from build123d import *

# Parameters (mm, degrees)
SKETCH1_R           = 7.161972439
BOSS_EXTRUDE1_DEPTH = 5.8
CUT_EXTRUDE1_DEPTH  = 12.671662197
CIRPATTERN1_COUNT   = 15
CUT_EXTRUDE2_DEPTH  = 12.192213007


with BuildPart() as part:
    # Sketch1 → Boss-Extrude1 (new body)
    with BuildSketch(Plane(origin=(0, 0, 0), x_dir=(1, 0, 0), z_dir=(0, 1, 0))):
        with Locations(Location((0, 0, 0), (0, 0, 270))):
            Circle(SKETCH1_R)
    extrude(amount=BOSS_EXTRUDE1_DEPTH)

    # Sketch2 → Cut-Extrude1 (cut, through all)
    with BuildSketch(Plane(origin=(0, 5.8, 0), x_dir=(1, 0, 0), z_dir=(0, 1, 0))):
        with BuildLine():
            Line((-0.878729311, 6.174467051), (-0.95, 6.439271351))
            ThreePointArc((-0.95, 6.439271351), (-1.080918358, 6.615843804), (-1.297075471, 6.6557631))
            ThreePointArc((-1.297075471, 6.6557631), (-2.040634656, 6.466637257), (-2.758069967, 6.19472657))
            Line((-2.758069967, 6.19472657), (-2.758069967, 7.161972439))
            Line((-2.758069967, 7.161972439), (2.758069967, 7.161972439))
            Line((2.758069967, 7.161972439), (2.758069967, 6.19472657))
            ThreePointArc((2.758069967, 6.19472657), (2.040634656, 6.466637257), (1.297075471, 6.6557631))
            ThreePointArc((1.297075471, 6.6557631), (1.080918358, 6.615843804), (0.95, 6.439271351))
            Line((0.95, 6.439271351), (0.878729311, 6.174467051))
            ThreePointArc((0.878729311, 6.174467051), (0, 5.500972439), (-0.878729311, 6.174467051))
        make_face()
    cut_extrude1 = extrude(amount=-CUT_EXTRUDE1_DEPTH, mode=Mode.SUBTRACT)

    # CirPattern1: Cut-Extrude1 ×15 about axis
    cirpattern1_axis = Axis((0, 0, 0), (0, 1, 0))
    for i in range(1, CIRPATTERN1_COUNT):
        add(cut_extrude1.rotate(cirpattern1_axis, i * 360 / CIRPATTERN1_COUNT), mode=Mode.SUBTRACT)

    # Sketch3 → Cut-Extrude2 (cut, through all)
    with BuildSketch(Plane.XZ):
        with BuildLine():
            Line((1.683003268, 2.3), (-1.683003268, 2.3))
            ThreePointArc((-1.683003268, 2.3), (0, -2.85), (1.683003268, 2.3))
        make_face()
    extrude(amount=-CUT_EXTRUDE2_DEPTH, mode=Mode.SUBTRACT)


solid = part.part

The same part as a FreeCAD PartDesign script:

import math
import FreeCAD as App
import Part
import Sketcher

V = App.Vector
Q = App.Units.Quantity

doc = App.newDocument("Part")
body = doc.addObject("PartDesign::Body", "Body")

# Sketch on XZ plane
sketch1 = doc.addObject("Sketcher::SketchObject", "Sketch")
body.addObject(sketch1)
sketch1.AttachmentSupport = (doc.XZ_Plane, [""])
sketch1.MapMode = "FlatFace"
sketch1.addGeometry(Part.Circle(V(0, 0, 0), V(0, 0, 1), 7), False)
sketch1.addConstraint(Sketcher.Constraint("Coincident", 0, 3, -1, 1))
sketch1.addConstraint(Sketcher.Constraint("Diameter", 0, Q("14.323945 mm")))
pad1 = doc.addObject("PartDesign::Pad", "Pad")
body.addObject(pad1)
pad1.Profile = sketch1
pad1.Length = 5.8
pad1.Reversed = True

# Sketch on XZ plane
sketch2 = doc.addObject("Sketcher::SketchObject", "Sketch001")
body.addObject(sketch2)
sketch2.AttachmentSupport = (doc.XZ_Plane, [""])
sketch2.MapMode = "FlatFace"
sketch2.AttachmentOffset = App.Placement(V(0, 0, -5.8), App.Rotation())
sketch2.addGeometry(Part.LineSegment(V(-0.95, -6.44, 0), V(-0.88, -6.17, 0)), False)
sketch2.addGeometry(Part.ArcOfCircle(Part.Circle(V(0, -6.41, 0), V(0, 0, 1), 0.91), math.radians(15), math.radians(165)), False)
sketch2.addGeometry(Part.LineSegment(V(0.88, -6.17, 0), V(0.95, -6.44, 0)), False)
sketch2.addGeometry(Part.ArcOfCircle(Part.Circle(V(1.24, -6.36, 0), V(0, 0, 1), 0.3), math.radians(-165), math.radians(-79)), False)
sketch2.addGeometry(Part.ArcOfCircle(Part.Circle(V(0, 0, 0), V(0, 0, 1), 6.78), math.radians(-78.97), math.radians(-66)), False)
sketch2.addGeometry(Part.LineSegment(V(2.76, -6.19, 0), V(2.76, -7.16, 0)), False)
sketch2.addGeometry(Part.LineSegment(V(2.76, -7.16, 0), V(-2.76, -7.16, 0)), False)
sketch2.addGeometry(Part.LineSegment(V(-2.76, -7.16, 0), V(-2.76, -6.19, 0)), False)
sketch2.addGeometry(Part.ArcOfCircle(Part.Circle(V(0, 0, 0), V(0, 0, 1), 6.78), math.radians(-114), math.radians(-101.03)), False)
sketch2.addGeometry(Part.ArcOfCircle(Part.Circle(V(-1.24, -6.36, 0), V(0, 0, 1), 0.3), math.radians(-101), math.radians(-15)), False)
sketch2.addConstraint(Sketcher.Constraint("Tangent", 0, 2, 1, 2))
sketch2.addConstraint(Sketcher.Constraint("Tangent", 1, 1, 2, 1))
sketch2.addConstraint(Sketcher.Constraint("Tangent", 2, 2, 3, 1))
sketch2.addConstraint(Sketcher.Constraint("Tangent", 3, 2, 4, 1))
sketch2.addConstraint(Sketcher.Constraint("Coincident", 4, 2, 5, 1))
sketch2.addConstraint(Sketcher.Constraint("Coincident", 5, 2, 6, 1))
sketch2.addConstraint(Sketcher.Constraint("Coincident", 6, 2, 7, 1))
sketch2.addConstraint(Sketcher.Constraint("Coincident", 7, 2, 8, 1))
sketch2.addConstraint(Sketcher.Constraint("Tangent", 8, 2, 9, 1))
sketch2.addConstraint(Sketcher.Constraint("Tangent", 9, 2, 0, 1))
sketch2.addConstraint(Sketcher.Constraint("Vertical", 5))
sketch2.addConstraint(Sketcher.Constraint("Horizontal", 6))
sketch2.addConstraint(Sketcher.Constraint("Vertical", 7))
sketch2.addConstraint(Sketcher.Constraint("Coincident", 4, 3, -1, 1))
sketch2.addConstraint(Sketcher.Constraint("Coincident", 8, 3, -1, 1))
sketch2.addConstraint(Sketcher.Constraint("Equal", 4, 8))
sketch2.addConstraint(Sketcher.Constraint("Equal", 3, 9))
sketch2.addConstraint(Sketcher.Constraint("Symmetric", 0, 2, 1, 1, -2))
sketch2.addConstraint(Sketcher.Constraint("Horizontal", 4, 2, 7, 2))
sketch2.addConstraint(Sketcher.Constraint("Radius", 3, Q("0.3 mm")))
sketch2.addConstraint(Sketcher.Constraint("Radius", 1, Q("0.91 mm")))
sketch2.addConstraint(Sketcher.Constraint("DistanceX", -1, 1, 2, 2, Q("0.95 mm")))
sketch2.addConstraint(Sketcher.Constraint("Radius", 4, Q("6.780973 mm")))
sketch2.addConstraint(Sketcher.Constraint("DistanceY", 6, 2, 1, 3, Q("0.751 mm")))
sketch2.addConstraint(Sketcher.Constraint("DistanceX", 6, 2, 6, 1, Q("5.51614 mm")))
sketch2.addConstraint(Sketcher.Constraint("DistanceY", 2, 2, 1, 3, Q("0.028299 mm")))
pocket1 = doc.addObject("PartDesign::Pocket", "Pocket")
body.addObject(pocket1)
pocket1.Profile = sketch2
pocket1.Type = "ThroughAll"
pocket1.Reversed = True
doc.recompute()

polarpattern = doc.addObject("PartDesign::PolarPattern", "PolarPattern")
body.addObject(polarpattern)
polarpattern.Originals = [pocket1]
polarpattern.Axis = (doc.Y_Axis, [""])
polarpattern.Angle = 360
polarpattern.Occurrences = 15
body.Tip = polarpattern

# Sketch on XZ plane
sketch3 = doc.addObject("Sketcher::SketchObject", "Sketch002")
body.addObject(sketch3)
sketch3.AttachmentSupport = (doc.XZ_Plane, [""])
sketch3.MapMode = "FlatFace"
sketch3.addGeometry(Part.LineSegment(V(1.7, 2.3, 0), V(-1.7, 2.3, 0)), False)
sketch3.addGeometry(Part.ArcOfCircle(Part.Circle(V(0, 0, 0), V(0, 0, 1), 2.9), math.radians(126), math.radians(414)), False)
sketch3.addConstraint(Sketcher.Constraint("Coincident", 0, 1, 1, 2))
sketch3.addConstraint(Sketcher.Constraint("Coincident", 1, 1, 0, 2))
sketch3.addConstraint(Sketcher.Constraint("Horizontal", 0))
sketch3.addConstraint(Sketcher.Constraint("Coincident", 1, 3, -1, 1))
sketch3.addConstraint(Sketcher.Constraint("Radius", 1, Q("2.85 mm")))
sketch3.addConstraint(Sketcher.Constraint("DistanceY", -1, 1, 0, 1, Q("2.3 mm")))
pocket2 = doc.addObject("PartDesign::Pocket", "Pocket001")
body.addObject(pocket2)
pocket2.Profile = sketch3
pocket2.Type = "ThroughAll"

doc.recompute()
